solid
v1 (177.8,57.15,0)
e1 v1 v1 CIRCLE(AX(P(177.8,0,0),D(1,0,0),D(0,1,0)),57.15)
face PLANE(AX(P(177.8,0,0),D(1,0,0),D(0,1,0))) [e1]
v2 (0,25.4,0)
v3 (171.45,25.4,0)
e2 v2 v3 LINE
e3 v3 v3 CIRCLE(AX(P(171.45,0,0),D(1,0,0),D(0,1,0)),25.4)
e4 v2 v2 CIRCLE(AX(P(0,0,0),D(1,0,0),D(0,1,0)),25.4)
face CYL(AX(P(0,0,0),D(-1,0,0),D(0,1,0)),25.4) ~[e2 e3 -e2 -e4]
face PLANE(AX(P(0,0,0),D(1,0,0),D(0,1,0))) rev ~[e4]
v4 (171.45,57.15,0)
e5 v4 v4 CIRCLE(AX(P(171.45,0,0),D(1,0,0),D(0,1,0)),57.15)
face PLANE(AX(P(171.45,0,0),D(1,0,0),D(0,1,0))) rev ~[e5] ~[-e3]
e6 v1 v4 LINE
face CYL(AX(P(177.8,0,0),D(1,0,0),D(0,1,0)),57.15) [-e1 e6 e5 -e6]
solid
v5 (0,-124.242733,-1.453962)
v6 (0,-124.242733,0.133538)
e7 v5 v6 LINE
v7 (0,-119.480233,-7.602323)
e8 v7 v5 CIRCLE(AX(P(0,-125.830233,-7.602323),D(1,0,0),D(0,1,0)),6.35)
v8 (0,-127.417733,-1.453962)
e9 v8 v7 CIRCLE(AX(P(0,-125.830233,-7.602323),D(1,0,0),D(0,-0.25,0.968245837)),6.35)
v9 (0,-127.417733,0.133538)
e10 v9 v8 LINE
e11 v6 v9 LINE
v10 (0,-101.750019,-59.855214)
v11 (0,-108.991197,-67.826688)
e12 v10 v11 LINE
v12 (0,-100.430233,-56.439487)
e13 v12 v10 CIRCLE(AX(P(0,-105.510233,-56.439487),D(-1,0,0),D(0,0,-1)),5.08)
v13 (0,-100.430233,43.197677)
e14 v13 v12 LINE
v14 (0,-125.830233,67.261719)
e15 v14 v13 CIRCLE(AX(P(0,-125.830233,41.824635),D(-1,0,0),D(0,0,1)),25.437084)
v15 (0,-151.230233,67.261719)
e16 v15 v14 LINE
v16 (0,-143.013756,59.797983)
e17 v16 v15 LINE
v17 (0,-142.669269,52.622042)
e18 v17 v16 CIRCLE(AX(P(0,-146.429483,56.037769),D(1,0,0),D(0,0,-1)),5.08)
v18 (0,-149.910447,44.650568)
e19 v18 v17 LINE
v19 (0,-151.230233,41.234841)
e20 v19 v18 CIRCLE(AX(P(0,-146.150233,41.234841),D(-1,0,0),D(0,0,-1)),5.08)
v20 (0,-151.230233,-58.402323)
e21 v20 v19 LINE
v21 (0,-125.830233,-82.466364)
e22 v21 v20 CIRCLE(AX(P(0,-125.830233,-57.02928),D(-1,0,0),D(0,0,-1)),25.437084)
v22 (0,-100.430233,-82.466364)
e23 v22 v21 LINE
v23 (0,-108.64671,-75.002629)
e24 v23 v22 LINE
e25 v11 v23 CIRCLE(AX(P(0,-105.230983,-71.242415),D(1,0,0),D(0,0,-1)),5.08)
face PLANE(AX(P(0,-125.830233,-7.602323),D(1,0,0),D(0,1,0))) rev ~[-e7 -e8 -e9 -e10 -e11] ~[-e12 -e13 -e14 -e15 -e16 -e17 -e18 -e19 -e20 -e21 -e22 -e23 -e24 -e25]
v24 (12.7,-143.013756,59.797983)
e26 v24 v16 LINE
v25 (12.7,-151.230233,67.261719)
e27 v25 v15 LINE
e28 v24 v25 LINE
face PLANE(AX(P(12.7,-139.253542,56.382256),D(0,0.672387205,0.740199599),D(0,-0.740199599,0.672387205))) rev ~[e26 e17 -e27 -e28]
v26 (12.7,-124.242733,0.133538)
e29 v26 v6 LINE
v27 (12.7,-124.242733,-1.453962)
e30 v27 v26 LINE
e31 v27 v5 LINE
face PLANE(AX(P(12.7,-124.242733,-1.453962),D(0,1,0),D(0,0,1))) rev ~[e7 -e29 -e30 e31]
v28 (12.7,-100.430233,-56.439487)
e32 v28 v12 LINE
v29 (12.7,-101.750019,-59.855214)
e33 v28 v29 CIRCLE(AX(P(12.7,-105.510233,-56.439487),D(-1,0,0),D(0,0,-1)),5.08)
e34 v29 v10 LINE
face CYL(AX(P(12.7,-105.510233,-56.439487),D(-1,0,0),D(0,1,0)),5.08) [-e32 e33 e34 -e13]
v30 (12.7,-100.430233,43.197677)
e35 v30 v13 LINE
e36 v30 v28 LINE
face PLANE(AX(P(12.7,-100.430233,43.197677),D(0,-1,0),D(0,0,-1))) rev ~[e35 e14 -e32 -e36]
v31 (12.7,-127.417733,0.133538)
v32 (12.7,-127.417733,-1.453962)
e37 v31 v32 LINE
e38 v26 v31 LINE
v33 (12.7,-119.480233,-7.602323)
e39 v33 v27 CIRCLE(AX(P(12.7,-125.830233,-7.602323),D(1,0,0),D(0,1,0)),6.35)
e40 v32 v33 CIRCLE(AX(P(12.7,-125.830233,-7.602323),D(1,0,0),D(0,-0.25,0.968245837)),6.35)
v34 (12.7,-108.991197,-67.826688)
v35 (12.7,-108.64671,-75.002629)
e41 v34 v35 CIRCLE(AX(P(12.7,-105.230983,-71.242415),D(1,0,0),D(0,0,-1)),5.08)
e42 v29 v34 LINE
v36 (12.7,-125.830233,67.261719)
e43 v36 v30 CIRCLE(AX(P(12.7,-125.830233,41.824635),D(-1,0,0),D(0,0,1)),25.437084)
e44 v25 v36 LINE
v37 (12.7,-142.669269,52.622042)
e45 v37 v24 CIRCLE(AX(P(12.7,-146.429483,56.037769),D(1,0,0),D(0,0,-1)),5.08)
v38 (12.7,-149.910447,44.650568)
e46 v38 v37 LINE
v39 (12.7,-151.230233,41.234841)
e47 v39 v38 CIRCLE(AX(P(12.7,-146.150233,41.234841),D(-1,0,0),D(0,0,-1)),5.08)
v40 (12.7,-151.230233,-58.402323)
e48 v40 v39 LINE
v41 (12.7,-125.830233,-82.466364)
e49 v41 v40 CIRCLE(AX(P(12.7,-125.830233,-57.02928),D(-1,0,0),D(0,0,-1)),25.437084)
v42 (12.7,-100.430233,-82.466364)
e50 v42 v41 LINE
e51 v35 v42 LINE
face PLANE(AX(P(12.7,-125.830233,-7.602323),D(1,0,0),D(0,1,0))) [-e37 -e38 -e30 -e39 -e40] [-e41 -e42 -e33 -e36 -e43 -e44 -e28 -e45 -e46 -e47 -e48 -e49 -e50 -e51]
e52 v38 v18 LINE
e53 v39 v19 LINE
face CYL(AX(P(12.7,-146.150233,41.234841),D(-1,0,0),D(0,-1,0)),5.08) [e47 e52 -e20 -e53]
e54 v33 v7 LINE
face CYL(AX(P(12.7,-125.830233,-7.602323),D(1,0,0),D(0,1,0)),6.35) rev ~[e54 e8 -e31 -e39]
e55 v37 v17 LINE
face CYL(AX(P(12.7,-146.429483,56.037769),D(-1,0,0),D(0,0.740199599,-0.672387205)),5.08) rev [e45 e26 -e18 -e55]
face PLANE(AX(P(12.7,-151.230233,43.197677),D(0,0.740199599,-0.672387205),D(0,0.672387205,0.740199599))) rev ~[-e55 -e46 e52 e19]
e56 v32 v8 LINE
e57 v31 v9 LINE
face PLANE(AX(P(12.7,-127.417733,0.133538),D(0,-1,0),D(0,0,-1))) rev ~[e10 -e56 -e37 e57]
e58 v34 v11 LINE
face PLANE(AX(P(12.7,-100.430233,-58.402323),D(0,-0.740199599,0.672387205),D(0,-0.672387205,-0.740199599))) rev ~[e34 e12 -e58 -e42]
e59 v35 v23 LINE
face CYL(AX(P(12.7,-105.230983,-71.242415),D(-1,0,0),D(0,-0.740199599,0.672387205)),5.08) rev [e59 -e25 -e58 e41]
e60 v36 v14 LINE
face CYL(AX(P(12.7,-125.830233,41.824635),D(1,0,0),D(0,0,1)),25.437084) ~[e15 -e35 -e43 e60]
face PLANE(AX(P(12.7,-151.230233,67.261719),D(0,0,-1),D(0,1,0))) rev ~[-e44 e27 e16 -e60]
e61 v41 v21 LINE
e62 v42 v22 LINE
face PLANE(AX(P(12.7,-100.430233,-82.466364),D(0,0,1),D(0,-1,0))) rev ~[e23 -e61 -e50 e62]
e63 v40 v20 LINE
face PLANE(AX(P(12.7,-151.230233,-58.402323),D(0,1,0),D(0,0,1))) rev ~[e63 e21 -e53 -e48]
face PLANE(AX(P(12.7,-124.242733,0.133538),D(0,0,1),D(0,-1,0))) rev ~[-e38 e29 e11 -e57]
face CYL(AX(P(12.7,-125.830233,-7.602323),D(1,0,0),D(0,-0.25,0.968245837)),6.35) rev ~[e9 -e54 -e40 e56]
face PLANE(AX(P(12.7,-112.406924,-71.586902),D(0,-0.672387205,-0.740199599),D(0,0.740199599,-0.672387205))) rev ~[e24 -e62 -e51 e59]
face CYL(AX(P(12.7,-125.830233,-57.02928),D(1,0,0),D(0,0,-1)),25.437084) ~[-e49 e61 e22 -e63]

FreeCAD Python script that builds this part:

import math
import FreeCAD as App
import Part
import Sketcher

V = App.Vector
Q = App.Units.Quantity


def edges_at(feature, points):
    """Names of the edges that pass closest to the given points."""
    edges = feature.Shape.Edges
    near = lambda p: min(range(len(edges)), key=lambda i: edges[i].distToShape(Part.Vertex(*p))[0])
    return sorted({f"Edge{near(p) + 1}" for p in points})

doc = App.newDocument("Part")
params = doc.addObject("Spreadsheet::Sheet", "Params")
for row, (alias, value) in enumerate([
    ("sketch1_diameter", "2 in"),
    ("pad1_length", "7 in"),
    ("sketch2_diameter", "2 in"),
    ("sketch2_diameter2", "4.5 in"),
    ("pad2_length", "0.25 in"),
    ("sketch3_diameter", "8 in"),
    ("pad3_length", "0.5 in"),
    ("sketch4_radius", "0.25 in"),
    ("sketch4_width", "0.125 in"),
    ("sketch4_height", "0.0625 in"),
    ("sketch5_diameter", "8 in"),
    ("sketch5_width", "1 in"),
    ("sketch5_height", "4 in"),
    ("fillet_radius", "0.2 in"),
], start=1):
    params.set(f"A{row}", alias)
    params.set(f"B{row}", "=" + value)
    params.setAlias(f"B{row}", alias)

body = doc.addObject("PartDesign::Body", "Body")

# Sketch on YZ plane
sketch1 = body.newObject("Sketcher::SketchObject", "Sketch")
sketch1.AttachmentSupport = (doc.getObject("YZ_Plane"), [""])
sketch1.MapMode = "FlatFace"
sketch1.addGeometry(Part.Circle(V(0, 0, 0), V(0, 0, 1), 25.4), False)
sketch1.addConstraint([
    Sketcher.Constraint("Coincident", 0, 3, -1, 1),
    Sketcher.Constraint("Diameter", 0, Q("2 in")),
])
sketch1.setExpression("Constraints[1]", "Params.sketch1_diameter")
pad1 = body.newObject("PartDesign::Pad", "Pad")
pad1.Profile = sketch1
pad1.setExpression("Length", "Params.pad1_length")

# Sketch on YZ plane
sketch2 = body.newObject("Sketcher::SketchObject", "Sketch001")
sketch2.AttachmentSupport = (doc.getObject("YZ_Plane"), [""])
sketch2.MapMode = "FlatFace"
sketch2.AttachmentOffset = App.Placement(V(0, 0, 7 * 25.4), App.Rotation())
sketch2.addGeometry([
    Part.Circle(V(0, 0, 0), V(0, 0, 1), 57.15),
    Part.Circle(V(0, 0, 0), V(0, 0, 1), 25.4),
], False)
sketch2.addConstraint([
    Sketcher.Constraint("Coincident", 0, 3, -1, 1),
    Sketcher.Constraint("Coincident", 1, 3, -1, 1),
    Sketcher.Constraint("Diameter", 1, Q("2 in")),
    Sketcher.Constraint("Diameter", 0, Q("4.5 in")),
])
sketch2.setExpression("Constraints[2]", "Params.sketch2_diameter")
sketch2.setExpression("Constraints[3]", "Params.sketch2_diameter2")
pad2 = body.newObject("PartDesign::Pad", "Pad001")
pad2.Profile = sketch2
pad2.setExpression("Length", "Params.pad2_length")
pad2.Reversed = True
body2 = doc.addObject("PartDesign::Body", "Body001")

# Sketch on YZ plane
sketch3 = body2.newObject("Sketcher::SketchObject", "Sketch002")
sketch3.AttachmentSupport = (doc.getObject("YZ_Plane001"), [""])
sketch3.MapMode = "FlatFace"
sketch3.addGeometry(Part.Circle(V(-125.830233, -7.602323, 0), V(0, 0, 1), 101.6), False)
sketch3.addConstraint([
    Sketcher.Constraint("Diameter", 0, Q("8 in")),
    Sketcher.Constraint("DistanceX", 0, 3, -1, 1, 125.830233),
    Sketcher.Constraint("DistanceY", 0, 3, -1, 1, 7.602323),
])
sketch3.setExpression("Constraints[0]", "Params.sketch3_diameter")
pad3 = body2.newObject("PartDesign::Pad", "Pad002")
pad3.Profile = sketch3
pad3.setExpression("Length", "Params.pad3_length")

# Sketch on YZ plane
sketch4 = body2.newObject("Sketcher::SketchObject", "Sketch003")
sketch4.AttachmentSupport = (doc.getObject("YZ_Plane001"), [""])
sketch4.MapMode = "FlatFace"
sketch4.AttachmentOffset = App.Placement(V(0, 0, 0.5 * 25.4), App.Rotation())
sketch4.addGeometry([
    Part.ArcOfCircle(Part.Circle(V(-125.830233, -7.602323, 0), V(0, 0, 1), 6.35), math.radians(104.477512), math.radians(360)),  # 0
    Part.ArcOfCircle(Part.Circle(V(-125.830233, -7.602323, 0), V(0, 0, 1), 6.35), math.radians(0), math.radians(75.522488)),  # 1
    Part.LineSegment(V(-124.242733, -1.453962, 0), V(-124.242733, 0.133538, 0)),  # 2
    Part.LineSegment(V(-124.242733, 0.133538, 0), V(-127.417733, 0.133538, 0)),  # 3
    Part.LineSegment(V(-127.417733, 0.133538, 0), V(-127.417733, -1.453962, 0)),  # 4
], False)
sketch4.addConstraint([
    Sketcher.Constraint("Tangent", 0, 2, 1, 1),
    Sketcher.Constraint("Coincident", 1, 2, 2, 1),
    Sketcher.Constraint("Coincident", 2, 2, 3, 1),
    Sketcher.Constraint("Coincident", 3, 2, 4, 1),
    Sketcher.Constraint("Coincident", 4, 2, 0, 1),
    Sketcher.Constraint("Vertical", 2),
    Sketcher.Constraint("Horizontal", 3),
    Sketcher.Constraint("Vertical", 4),
    Sketcher.Constraint("Equal", 0, 1),
    Sketcher.Constraint("Horizontal", 1, 3, 0, 2),
    Sketcher.Constraint("Horizontal", 1, 2, 4, 2),
    Sketcher.Constraint("Radius", 0, Q("0.25 in")),
    Sketcher.Constraint("DistanceX", 3, 2, 3, 1, Q("0.125 in")),
    Sketcher.Constraint("DistanceY", 2, 1, 2, 2, Q("0.0625 in")),
    Sketcher.Constraint("DistanceY", 1, 2, -1, 1, 1.453962),
    Sketcher.Constraint("DistanceX", 0, 3, -1, 1, 125.830233),
])
sketch4.setExpression("Constraints[11]", "Params.sketch4_radius")
sketch4.setExpression("Constraints[12]", "Params.sketch4_width")
sketch4.setExpression("Constraints[13]", "Params.sketch4_height")
pocket1 = body2.newObject("PartDesign::Pocket", "Pocket")
pocket1.Profile = sketch4
pocket1.Type = "ThroughAll"

# Sketch on YZ plane
sketch5 = body2.newObject("Sketcher::SketchObject", "Sketch004")
sketch5.AttachmentSupport = (doc.getObject("YZ_Plane001"), [""])
sketch5.MapMode = "FlatFace"
sketch5.AttachmentOffset = App.Placement(V(0, 0, 0.5 * 25.4), App.Rotation())
sketch5.addGeometry([
    Part.Circle(V(-125.830233, -7.602323, 0), V(0, 0, 1), 101.6),  # 0
    Part.LineSegment(V(-151.230233, 67.261719, 0), V(-125.830233, 67.261719, 0)),  # 1
    Part.ArcOfCircle(Part.Circle(V(-125.830233, 41.824635, 0), V(0, 0, 1), 25.437084), math.radians(3.094215), math.radians(90)),  # 2
    Part.LineSegment(V(-100.430233, 43.197677, 0), V(-100.430233, -58.402323, 0)),  # 3
    Part.LineSegment(V(-100.430233, -58.402323, 0), V(-112.406924, -71.586902, 0)),  # 4
    Part.LineSegment(V(-112.406924, -71.586902, 0), V(-100.430233, -82.466364, 0)),  # 5
    Part.LineSegment(V(-100.430233, -82.466364, 0), V(-125.830233, -82.466364, 0)),  # 6
    Part.ArcOfCircle(Part.Circle(V(-125.830233, -57.02928, 0), V(0, 0, 1), 25.437084), math.radians(-176.905785), math.radians(-90)),  # 7
    Part.LineSegment(V(-151.230233, -58.402323, 0), V(-151.230233, 43.197677, 0)),  # 8
    Part.LineSegment(V(-151.230233, 43.197677, 0), V(-139.253542, 56.382256, 0)),  # 9
    Part.LineSegment(V(-139.253542, 56.382256, 0), V(-151.230233, 67.261719, 0)),  # 10
], False)
sketch5.addConstraint([
    Sketcher.Constraint("Tangent", 1, 2, 2, 2),
    Sketcher.Constraint("Coincident", 2, 1, 3, 1),
    Sketcher.Constraint("Coincident", 3, 2, 4, 1),
    Sketcher.Constraint("Coincident", 4, 2, 5, 1),
    Sketcher.Constraint("Coincident", 5, 2, 6, 1),
    Sketcher.Constraint("Tangent", 6, 2, 7, 2),
    Sketcher.Constraint("Coincident", 7, 1, 8, 1),
    Sketcher.Constraint("Coincident", 8, 2, 9, 1),
    Sketcher.Constraint("Coincident", 9, 2, 10, 1),
    Sketcher.Constraint("Coincident", 10, 2, 1, 1),
    Sketcher.Constraint("Horizontal", 1),
    Sketcher.Constraint("Vertical", 3),
    Sketcher.Constraint("Horizontal", 6),
    Sketcher.Constraint("Vertical", 8),
    Sketcher.Constraint("Equal", 2, 7),
    Sketcher.Constraint("Perpendicular", 4, 5),
    Sketcher.Constraint("Perpendicular", 5, 9),
    Sketcher.Constraint("Perpendicular", 9, 10),
    Sketcher.Constraint("Horizontal", 3, 2, 7, 1),
    Sketcher.Constraint("Horizontal", 2, 1, 8, 2),
    Sketcher.Constraint("Vertical", 0, 3, 2, 3),
    Sketcher.Constraint("Vertical", 2, 3, 7, 3),
    Sketcher.Constraint("Vertical", 3, 2, 5, 2),
    Sketcher.Constraint("Vertical", 8, 2, 10, 2),
    Sketcher.Constraint("Equal", 1, 6),
    Sketcher.Constraint("Diameter", 0, Q("8 in")),
    Sketcher.Constraint("DistanceX", 1, 1, 1, 2, Q("1 in")),
    Sketcher.Constraint("DistanceY", 3, 2, 3, 1, Q("4 in")),
    Sketcher.Constraint("DistanceY", 0, 3, 2, 1, Q("2 in")),
    Sketcher.Constraint("Radius", 2, 25.437084),
    Sketcher.Constraint("DistanceY", 4, 2, -1, 1, 71.586902),
    Sketcher.Constraint("DistanceY", 7, 3, -1, 1, 57.02928),
    Sketcher.Constraint("DistanceX", 9, 2, -1, 1, 139.253542),
])
sketch5.setExpression("Constraints[25]", "Params.sketch5_diameter")
sketch5.setExpression("Constraints[26]", "Params.sketch5_width")
sketch5.setExpression("Constraints[27]", "Params.sketch5_height")
pocket2 = body2.newObject("PartDesign::Pocket", "Pocket001")
pocket2.Profile = sketch5
pocket2.Type = "ThroughAll"
doc.recompute()

fillet = body2.newObject("PartDesign::Fillet", "Fillet")
fillet.Base = (pocket2, edges_at(pocket2, [
    (6.35, -151.23, 43.198),
    (6.35, -100.43, -58.402),
    (6.35, -112.407, -71.587),
    (6.35, -139.254, 56.382),
]))
fillet.setExpression("Radius", "Params.fillet_radius")

doc.recompute()
